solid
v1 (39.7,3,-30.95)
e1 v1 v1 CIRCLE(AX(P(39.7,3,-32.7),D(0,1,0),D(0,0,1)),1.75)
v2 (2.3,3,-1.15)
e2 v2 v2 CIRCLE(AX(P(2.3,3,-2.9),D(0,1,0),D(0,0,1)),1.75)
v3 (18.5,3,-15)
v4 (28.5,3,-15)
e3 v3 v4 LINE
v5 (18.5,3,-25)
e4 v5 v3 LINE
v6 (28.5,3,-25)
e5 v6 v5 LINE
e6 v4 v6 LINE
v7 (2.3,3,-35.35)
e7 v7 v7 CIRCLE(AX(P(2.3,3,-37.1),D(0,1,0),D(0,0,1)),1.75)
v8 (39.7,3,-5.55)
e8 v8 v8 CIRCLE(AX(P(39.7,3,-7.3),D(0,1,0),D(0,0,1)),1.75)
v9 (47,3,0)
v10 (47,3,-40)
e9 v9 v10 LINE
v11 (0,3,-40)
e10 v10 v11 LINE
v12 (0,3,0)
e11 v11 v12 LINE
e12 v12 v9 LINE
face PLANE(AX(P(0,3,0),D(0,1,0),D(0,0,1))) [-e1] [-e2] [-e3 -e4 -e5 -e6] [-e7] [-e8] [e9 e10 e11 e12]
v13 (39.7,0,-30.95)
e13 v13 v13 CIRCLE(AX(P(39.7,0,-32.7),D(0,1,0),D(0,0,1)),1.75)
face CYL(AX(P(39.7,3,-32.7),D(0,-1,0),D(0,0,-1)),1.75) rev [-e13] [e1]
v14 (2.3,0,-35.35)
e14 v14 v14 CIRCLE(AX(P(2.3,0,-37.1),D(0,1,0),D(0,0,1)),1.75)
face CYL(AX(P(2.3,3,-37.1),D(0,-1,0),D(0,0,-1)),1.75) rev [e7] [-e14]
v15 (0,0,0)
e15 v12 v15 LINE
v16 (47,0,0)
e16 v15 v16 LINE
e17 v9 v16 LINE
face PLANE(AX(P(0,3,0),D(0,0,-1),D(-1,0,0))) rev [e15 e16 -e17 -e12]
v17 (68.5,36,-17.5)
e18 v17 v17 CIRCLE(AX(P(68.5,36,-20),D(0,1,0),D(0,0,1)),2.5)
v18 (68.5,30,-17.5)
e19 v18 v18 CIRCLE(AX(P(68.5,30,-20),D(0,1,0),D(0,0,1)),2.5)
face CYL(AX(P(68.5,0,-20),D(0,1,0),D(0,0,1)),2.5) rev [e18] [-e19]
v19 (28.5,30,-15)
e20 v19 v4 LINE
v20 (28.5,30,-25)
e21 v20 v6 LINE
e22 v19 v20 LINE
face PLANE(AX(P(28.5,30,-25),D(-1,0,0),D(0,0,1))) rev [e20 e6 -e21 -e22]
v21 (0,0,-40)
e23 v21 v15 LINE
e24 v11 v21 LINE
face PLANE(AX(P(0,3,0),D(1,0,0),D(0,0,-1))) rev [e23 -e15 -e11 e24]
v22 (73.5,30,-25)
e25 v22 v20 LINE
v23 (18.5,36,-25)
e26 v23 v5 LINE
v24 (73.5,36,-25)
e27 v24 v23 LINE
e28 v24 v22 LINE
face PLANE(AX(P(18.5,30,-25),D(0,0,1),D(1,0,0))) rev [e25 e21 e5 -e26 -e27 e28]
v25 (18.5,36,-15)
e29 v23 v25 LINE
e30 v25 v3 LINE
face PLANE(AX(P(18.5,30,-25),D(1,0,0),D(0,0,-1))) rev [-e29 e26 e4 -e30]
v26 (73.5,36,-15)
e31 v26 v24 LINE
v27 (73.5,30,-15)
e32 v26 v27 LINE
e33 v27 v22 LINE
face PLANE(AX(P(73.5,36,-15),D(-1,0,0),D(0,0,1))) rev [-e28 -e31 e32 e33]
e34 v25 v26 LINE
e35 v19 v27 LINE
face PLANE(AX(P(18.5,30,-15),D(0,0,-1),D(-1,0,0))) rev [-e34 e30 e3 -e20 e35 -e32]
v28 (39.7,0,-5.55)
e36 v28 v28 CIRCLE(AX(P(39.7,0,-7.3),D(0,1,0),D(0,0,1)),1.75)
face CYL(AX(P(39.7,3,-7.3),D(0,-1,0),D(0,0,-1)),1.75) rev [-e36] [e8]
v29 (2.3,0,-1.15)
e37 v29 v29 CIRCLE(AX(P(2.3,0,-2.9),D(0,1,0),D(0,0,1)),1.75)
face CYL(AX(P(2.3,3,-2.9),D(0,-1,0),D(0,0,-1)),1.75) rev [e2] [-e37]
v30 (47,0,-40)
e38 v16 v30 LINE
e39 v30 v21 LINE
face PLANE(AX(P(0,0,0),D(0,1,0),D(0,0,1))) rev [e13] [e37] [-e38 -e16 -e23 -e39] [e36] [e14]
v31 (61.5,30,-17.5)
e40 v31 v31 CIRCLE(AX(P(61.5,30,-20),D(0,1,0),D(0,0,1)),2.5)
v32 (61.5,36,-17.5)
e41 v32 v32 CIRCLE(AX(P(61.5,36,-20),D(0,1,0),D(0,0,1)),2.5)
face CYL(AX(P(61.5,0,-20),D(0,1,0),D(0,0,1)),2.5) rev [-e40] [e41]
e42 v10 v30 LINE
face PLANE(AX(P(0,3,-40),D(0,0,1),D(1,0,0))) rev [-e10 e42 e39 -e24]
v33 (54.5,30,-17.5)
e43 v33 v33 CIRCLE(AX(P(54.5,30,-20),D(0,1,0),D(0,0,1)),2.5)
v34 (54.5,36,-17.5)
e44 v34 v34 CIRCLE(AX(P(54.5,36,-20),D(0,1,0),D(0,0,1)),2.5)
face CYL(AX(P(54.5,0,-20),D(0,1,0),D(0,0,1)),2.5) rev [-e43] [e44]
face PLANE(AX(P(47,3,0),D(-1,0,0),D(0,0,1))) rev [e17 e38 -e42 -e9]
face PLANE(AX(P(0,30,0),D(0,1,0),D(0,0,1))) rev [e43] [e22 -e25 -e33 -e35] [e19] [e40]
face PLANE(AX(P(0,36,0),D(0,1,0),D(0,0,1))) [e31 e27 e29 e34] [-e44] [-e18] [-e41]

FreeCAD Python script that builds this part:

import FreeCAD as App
import Part
import Sketcher

V = App.Vector


def add_polygon(sketch, points):
    """Adds a closed chain of lines whose ends are joined by coincident constraints."""
    first, n = sketch.GeometryCount, len(points)
    for a, b in zip(points, points[1:] + points[:1]):
        sketch.addGeometry(Part.LineSegment(App.Vector(*a, 0), App.Vector(*b, 0)), False)
    for i in range(n):
        sketch.addConstraint(Sketcher.Constraint("Coincident", first + i, 2, first + (i + 1) % n, 1))

doc = App.newDocument("Part")
params = doc.addObject("Spreadsheet::Sheet", "Params")
for row, (alias, value) in enumerate([
    ("sketch1_diameter", "3.5 mm"),
    ("sketch1_width", "47 mm"),
    ("sketch1_height", "40 mm"),
    ("pad1_length", "3 mm"),
    ("sketch2_width", "10 mm"),
    ("pad2_length", "27 mm"),
    ("sketch3_width", "55 mm"),
    ("sketch3_height", "10 mm"),
    ("pad3_length", "6 mm"),
    ("sketch4_width", "55 mm"),
    ("sketch4_height", "10 mm"),
    ("pocket1_length", "6 mm"),
    ("sketch5_width", "55 mm"),
    ("sketch5_height", "10 mm"),
    ("pad4_length", "6 mm"),
    ("sketch6_diameter", "5 mm"),
], start=1):
    params.set(f"A{row}", alias)
    params.set(f"B{row}", "=" + value)
    params.setAlias(f"B{row}", alias)

body = doc.addObject("PartDesign::Body", "Body")

sketch1 = body.newObject("Sketcher::SketchObject", "Sketch")
sketch1.AttachmentSupport = (doc.getObject("XZ_Plane"), [""])
sketch1.MapMode = "FlatFace"
add_polygon(sketch1, [(0, -40), (0, 0), (47, 0), (47, -40)])
sketch1.addGeometry(Part.Circle(V(2.3, -2.9, 0), V(0, 0, 1), 1.75), False)
sketch1.addGeometry(Part.Circle(V(39.7, -7.3, 0), V(0, 0, 1), 1.75), False)
sketch1.addGeometry(Part.Circle(V(2.3, -37.1, 0), V(0, 0, 1), 1.75), False)
sketch1.addGeometry(Part.Circle(V(39.7, -32.7, 0), V(0, 0, 1), 1.75), False)
sketch1.addConstraint(Sketcher.Constraint("Vertical", 0))
sketch1.addConstraint(Sketcher.Constraint("Horizontal", 1))
sketch1.addConstraint(Sketcher.Constraint("Vertical", 2))
sketch1.addConstraint(Sketcher.Constraint("Horizontal", 3))
sketch1.addConstraint(Sketcher.Constraint("Coincident", 0, 2, -1, 1))
sketch1.addConstraint(Sketcher.Constraint("Equal", 4, 5))
sketch1.addConstraint(Sketcher.Constraint("Equal", 5, 6))
sketch1.addConstraint(Sketcher.Constraint("Equal", 6, 7))
sketch1.addConstraint(Sketcher.Constraint("Vertical", 4, 3, 6, 3))
sketch1.addConstraint(Sketcher.Constraint("Vertical", 5, 3, 7, 3))
sketch1.addConstraint(Sketcher.Constraint("Diameter", 4, 3.5))
sketch1.addConstraint(Sketcher.Constraint("DistanceX", 1, 1, 1, 2, 47.0))
sketch1.addConstraint(Sketcher.Constraint("DistanceY", 0, 1, 0, 2, 40.0))
sketch1.addConstraint(Sketcher.Constraint("DistanceX", -1, 1, 4, 3, 2.3))
sketch1.addConstraint(Sketcher.Constraint("DistanceY", 4, 3, -1, 1, 2.9))
sketch1.addConstraint(Sketcher.Constraint("DistanceX", -1, 1, 5, 3, 39.7))
sketch1.addConstraint(Sketcher.Constraint("DistanceY", 5, 3, -1, 1, 7.3))
sketch1.addConstraint(Sketcher.Constraint("DistanceY", 6, 3, -1, 1, 37.1))
sketch1.addConstraint(Sketcher.Constraint("DistanceY", 7, 3, -1, 1, 32.7))
sketch1.setExpression("Constraints[14]", "Params.sketch1_diameter")
sketch1.setExpression("Constraints[15]", "Params.sketch1_width")
sketch1.setExpression("Constraints[16]", "Params.sketch1_height")
pad1 = body.newObject("PartDesign::Pad", "Pad")
pad1.Profile = sketch1
pad1.setExpression("Length", "Params.pad1_length")
pad1.Reversed = True

sketch2 = body.newObject("Sketcher::SketchObject", "Sketch001")
sketch2.AttachmentSupport = (doc.getObject("XZ_Plane"), [""])
sketch2.MapMode = "FlatFace"
sketch2.AttachmentOffset = App.Placement(V(0, 0, -3), App.Rotation())
add_polygon(sketch2, [(18.5, -25), (18.5, -15), (28.5, -15), (28.5, -25)])
sketch2.addConstraint(Sketcher.Constraint("Vertical", 0))
sketch2.addConstraint(Sketcher.Constraint("Horizontal", 1))
sketch2.addConstraint(Sketcher.Constraint("Vertical", 2))
sketch2.addConstraint(Sketcher.Constraint("Horizontal", 3))
sketch2.addConstraint(Sketcher.Constraint("Equal", 3, 0))
sketch2.addConstraint(Sketcher.Constraint("DistanceX", 1, 1, 1, 2, 10.0))
sketch2.addConstraint(Sketcher.Constraint("DistanceY", 0, 2, -1, 1, 15.0))
sketch2.addConstraint(Sketcher.Constraint("DistanceX", -1, 1, 0, 2, 18.5))
sketch2.setExpression("Constraints[9]", "Params.sketch2_width")
pad2 = body.newObject("PartDesign::Pad", "Pad001")
pad2.Profile = sketch2
pad2.setExpression("Length", "Params.pad2_length")
pad2.Reversed = True

sketch3 = body.newObject("Sketcher::SketchObject", "Sketch002")
sketch3.AttachmentSupport = (doc.getObject("XZ_Plane"), [""])
sketch3.MapMode = "FlatFace"
sketch3.AttachmentOffset = App.Placement(V(0, 0, -30), App.Rotation())
add_polygon(sketch3, [(73.5, -15), (73.5, -25), (18.5, -25), (18.5, -15)])
sketch3.addConstraint(Sketcher.Constraint("Vertical", 0))
sketch3.addConstraint(Sketcher.Constraint("Horizontal", 1))
sketch3.addConstraint(Sketcher.Constraint("Vertical", 2))
sketch3.addConstraint(Sketcher.Constraint("Horizontal", 3))
sketch3.addConstraint(Sketcher.Constraint("DistanceX", 1, 2, 1, 1, 55.0))
sketch3.addConstraint(Sketcher.Constraint("DistanceY", 0, 2, 0, 1, 10.0))
sketch3.addConstraint(Sketcher.Constraint("DistanceY", 0, 2, -1, 1, 25.0))
sketch3.addConstraint(Sketcher.Constraint("DistanceX", -1, 1, 0, 2, 73.5))
sketch3.setExpression("Constraints[8]", "Params.sketch3_width")
sketch3.setExpression("Constraints[9]", "Params.sketch3_height")
pad3 = body.newObject("PartDesign::Pad", "Pad002")
pad3.Profile = sketch3
pad3.setExpression("Length", "Params.pad3_length")
pad3.Reversed = True

sketch4 = body.newObject("Sketcher::SketchObject", "Sketch003")
sketch4.AttachmentSupport = (doc.getObject("XZ_Plane"), [""])
sketch4.MapMode = "FlatFace"
sketch4.AttachmentOffset = App.Placement(V(0, 0, -36), App.Rotation())
add_polygon(sketch4, [(18.5, -25), (18.5, -15), (73.5, -15), (73.5, -25)])
sketch4.addConstraint(Sketcher.Constraint("Vertical", 0))
sketch4.addConstraint(Sketcher.Constraint("Horizontal", 1))
sketch4.addConstraint(Sketcher.Constraint("Vertical", 2))
sketch4.addConstraint(Sketcher.Constraint("Horizontal", 3))
sketch4.addConstraint(Sketcher.Constraint("DistanceX", 1, 1, 1, 2, 55.0))
sketch4.addConstraint(Sketcher.Constraint("DistanceY", 0, 1, 0, 2, 10.0))
sketch4.addConstraint(Sketcher.Constraint("DistanceY", 0, 2, -1, 1, 15.0))
sketch4.addConstraint(Sketcher.Constraint("DistanceX", -1, 1, 0, 2, 18.5))
sketch4.setExpression("Constraints[8]", "Params.sketch4_width")
sketch4.setExpression("Constraints[9]", "Params.sketch4_height")
pocket1 = body.newObject("PartDesign::Pocket", "Pocket")
pocket1.Profile = sketch4
pocket1.setExpression("Length", "Params.pocket1_length")
pocket1.Reversed = True

sketch5 = body.newObject("Sketcher::SketchObject", "Sketch004")
sketch5.AttachmentSupport = (doc.getObject("XZ_Plane"), [""])
sketch5.MapMode = "FlatFace"
sketch5.AttachmentOffset = App.Placement(V(0, 0, -30), App.Rotation())
add_polygon(sketch5, [(18.5, -25), (18.5, -15), (73.5, -15), (73.5, -25)])
sketch5.addConstraint(Sketcher.Constraint("Vertical", 0))
sketch5.addConstraint(Sketcher.Constraint("Horizontal", 1))
sketch5.addConstraint(Sketcher.Constraint("Vertical", 2))
sketch5.addConstraint(Sketcher.Constraint("Horizontal", 3))
sketch5.addConstraint(Sketcher.Constraint("DistanceX", 1, 1, 1, 2, 55.0))
sketch5.addConstraint(Sketcher.Constraint("DistanceY", 0, 1, 0, 2, 10.0))
sketch5.addConstraint(Sketcher.Constraint("DistanceY", 0, 2, -1, 1, 15.0))
sketch5.addConstraint(Sketcher.Constraint("DistanceX", -1, 1, 0, 2, 18.5))
sketch5.setExpression("Constraints[8]", "Params.sketch5_width")
sketch5.setExpression("Constraints[9]", "Params.sketch5_height")
pad4 = body.newObject("PartDesign::Pad", "Pad003")
pad4.Profile = sketch5
pad4.setExpression("Length", "Params.pad4_length")
pad4.Reversed = True

sketch6 = body.newObject("Sketcher::SketchObject", "Sketch005")
sketch6.AttachmentSupport = (doc.getObject("XZ_Plane"), [""])
sketch6.MapMode = "FlatFace"
sketch6.AttachmentOffset = App.Placement(V(0, 0, -36), App.Rotation())
sketch6.addGeometry(Part.Circle(V(68.5, -20, 0), V(0, 0, 1), 2.5), False)
sketch6.addGeometry(Part.Circle(V(61.5, -20, 0), V(0, 0, 1), 2.5), False)
sketch6.addGeometry(Part.Circle(V(54.5, -20, 0), V(0, 0, 1), 2.5), False)
sketch6.addConstraint(Sketcher.Constraint("Equal", 0, 1))
sketch6.addConstraint(Sketcher.Constraint("Equal", 1, 2))
sketch6.addConstraint(Sketcher.Constraint("Horizontal", 0, 3, 1, 3))
sketch6.addConstraint(Sketcher.Constraint("Horizontal", 1, 3, 2, 3))
sketch6.addConstraint(Sketcher.Constraint("Diameter", 0, 5.0))
sketch6.addConstraint(Sketcher.Constraint("DistanceY", 0, 3, -1, 1, 20.0))
sketch6.addConstraint(Sketcher.Constraint("DistanceX", 1, 3, 0, 3, 7.0))
sketch6.addConstraint(Sketcher.Constraint("DistanceX", 2, 3, 1, 3, 7.0))
sketch6.addConstraint(Sketcher.Constraint("DistanceX", -1, 1, 0, 3, 68.5))
sketch6.setExpression("Constraints[4]", "Params.sketch6_diameter")
pocket2 = body.newObject("PartDesign::Pocket", "Pocket001")
pocket2.Profile = sketch6
pocket2.Type = "ThroughAll"
pocket2.Reversed = True

doc.recompute()
